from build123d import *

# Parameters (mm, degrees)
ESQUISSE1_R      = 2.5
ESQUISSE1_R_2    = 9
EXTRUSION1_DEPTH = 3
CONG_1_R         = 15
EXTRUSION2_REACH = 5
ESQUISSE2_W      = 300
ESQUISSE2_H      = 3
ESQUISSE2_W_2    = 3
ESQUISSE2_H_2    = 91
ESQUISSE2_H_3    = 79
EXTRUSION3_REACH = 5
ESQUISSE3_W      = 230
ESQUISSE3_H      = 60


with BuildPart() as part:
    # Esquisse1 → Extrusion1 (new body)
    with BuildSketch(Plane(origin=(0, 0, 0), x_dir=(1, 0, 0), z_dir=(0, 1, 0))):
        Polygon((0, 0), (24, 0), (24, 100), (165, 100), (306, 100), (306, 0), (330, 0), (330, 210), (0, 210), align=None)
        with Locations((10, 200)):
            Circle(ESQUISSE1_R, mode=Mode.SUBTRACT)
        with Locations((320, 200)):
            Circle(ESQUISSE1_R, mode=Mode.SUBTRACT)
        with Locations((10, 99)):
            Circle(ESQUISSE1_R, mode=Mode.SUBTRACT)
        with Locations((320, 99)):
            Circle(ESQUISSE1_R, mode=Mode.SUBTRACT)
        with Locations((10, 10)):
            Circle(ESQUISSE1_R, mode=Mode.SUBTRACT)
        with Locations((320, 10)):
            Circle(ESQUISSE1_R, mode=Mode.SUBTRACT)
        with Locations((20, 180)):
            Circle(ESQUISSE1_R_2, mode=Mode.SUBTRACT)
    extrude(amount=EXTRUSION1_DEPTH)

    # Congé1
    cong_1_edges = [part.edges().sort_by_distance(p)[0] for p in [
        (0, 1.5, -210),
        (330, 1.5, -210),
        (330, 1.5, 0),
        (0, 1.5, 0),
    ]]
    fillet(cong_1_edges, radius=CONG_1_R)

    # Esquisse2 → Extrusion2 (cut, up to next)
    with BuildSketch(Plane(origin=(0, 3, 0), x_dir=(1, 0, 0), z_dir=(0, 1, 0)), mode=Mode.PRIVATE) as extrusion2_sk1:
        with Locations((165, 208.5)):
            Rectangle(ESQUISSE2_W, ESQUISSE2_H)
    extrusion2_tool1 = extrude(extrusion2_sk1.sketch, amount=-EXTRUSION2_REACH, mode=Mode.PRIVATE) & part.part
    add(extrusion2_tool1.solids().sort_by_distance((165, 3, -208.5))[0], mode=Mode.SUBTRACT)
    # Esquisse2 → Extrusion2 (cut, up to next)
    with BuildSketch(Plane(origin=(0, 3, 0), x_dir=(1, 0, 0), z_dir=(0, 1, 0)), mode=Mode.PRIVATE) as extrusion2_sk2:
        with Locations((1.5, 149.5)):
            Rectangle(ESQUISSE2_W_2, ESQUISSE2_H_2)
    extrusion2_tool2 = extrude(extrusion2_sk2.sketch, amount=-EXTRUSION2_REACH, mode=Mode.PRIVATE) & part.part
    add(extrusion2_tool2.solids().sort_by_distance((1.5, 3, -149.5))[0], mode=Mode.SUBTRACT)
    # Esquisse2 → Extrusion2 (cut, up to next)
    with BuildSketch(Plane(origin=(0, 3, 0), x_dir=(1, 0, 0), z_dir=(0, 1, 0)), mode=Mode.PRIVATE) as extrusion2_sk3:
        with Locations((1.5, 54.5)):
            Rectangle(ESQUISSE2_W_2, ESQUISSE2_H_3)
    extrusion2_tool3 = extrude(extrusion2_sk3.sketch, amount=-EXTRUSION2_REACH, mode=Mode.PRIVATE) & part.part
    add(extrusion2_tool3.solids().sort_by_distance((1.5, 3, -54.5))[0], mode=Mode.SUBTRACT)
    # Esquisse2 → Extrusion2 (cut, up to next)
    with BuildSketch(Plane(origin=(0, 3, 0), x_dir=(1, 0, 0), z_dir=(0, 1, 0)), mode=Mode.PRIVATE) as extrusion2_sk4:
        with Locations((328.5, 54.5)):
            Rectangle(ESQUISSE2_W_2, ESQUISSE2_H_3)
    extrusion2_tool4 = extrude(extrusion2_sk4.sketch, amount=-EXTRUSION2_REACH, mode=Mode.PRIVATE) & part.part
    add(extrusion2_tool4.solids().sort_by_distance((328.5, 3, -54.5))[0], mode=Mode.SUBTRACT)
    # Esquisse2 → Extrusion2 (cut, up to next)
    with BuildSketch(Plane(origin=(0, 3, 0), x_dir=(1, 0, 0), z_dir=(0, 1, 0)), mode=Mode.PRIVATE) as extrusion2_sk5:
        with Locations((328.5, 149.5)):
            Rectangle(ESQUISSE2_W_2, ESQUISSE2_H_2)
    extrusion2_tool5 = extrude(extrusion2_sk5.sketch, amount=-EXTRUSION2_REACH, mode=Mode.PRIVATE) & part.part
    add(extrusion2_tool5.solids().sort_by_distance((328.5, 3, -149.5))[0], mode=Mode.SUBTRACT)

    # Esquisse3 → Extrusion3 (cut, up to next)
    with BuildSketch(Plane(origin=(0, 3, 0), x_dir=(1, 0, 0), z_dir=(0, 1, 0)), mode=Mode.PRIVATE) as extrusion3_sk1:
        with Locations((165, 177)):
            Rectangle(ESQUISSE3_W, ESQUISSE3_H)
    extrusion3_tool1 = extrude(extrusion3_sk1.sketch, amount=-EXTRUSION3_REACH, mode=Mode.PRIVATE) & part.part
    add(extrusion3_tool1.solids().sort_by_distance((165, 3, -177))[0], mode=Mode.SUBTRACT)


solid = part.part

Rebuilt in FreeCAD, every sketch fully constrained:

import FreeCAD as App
import Part
import Sketcher


def edges_at(feature, points):
    """Names of the edges that pass closest to the given points."""
    edges = feature.Shape.Edges
    near = lambda p: min(range(len(edges)), key=lambda i: edges[i].distToShape(Part.Vertex(*p))[0])
    return sorted({f"Edge{near(p) + 1}" for p in points})


def add_polygon(sketch, points):
    """Adds a closed chain of lines whose ends are joined by coincident constraints."""
    first, n = sketch.GeometryCount, len(points)
    for a, b in zip(points, points[1:] + points[:1]):
        sketch.addGeometry(Part.LineSegment(App.Vector(*a, 0), App.Vector(*b, 0)), False)
    for i in range(n):
        sketch.addConstraint(Sketcher.Constraint("Coincident", first + i, 2, first + (i + 1) % n, 1))

doc = App.newDocument("Part")
body = doc.addObject("PartDesign::Body", "Body")

sketch1 = doc.addObject("Sketcher::SketchObject", "Sketch")
body.addObject(sketch1)
sketch1.AttachmentSupport = (doc.XZ_Plane, [""])
sketch1.MapMode = "FlatFace"
add_polygon(sketch1, [(0, 0), (24, 0), (24, -100), (306, -100), (306, 0), (330, 0), (330, -210), (0, -210)])
sketch1.addGeometry(Part.Circle(App.Vector(10, -10, 0), App.Vector(0, 0, 1), 2.5), False)
sketch1.addGeometry(Part.Circle(App.Vector(10, -99, 0), App.Vector(0, 0, 1), 2.5), False)
sketch1.addGeometry(Part.Circle(App.Vector(320, -10, 0), App.Vector(0, 0, 1), 2.5), False)
sketch1.addGeometry(Part.Circle(App.Vector(320, -99, 0), App.Vector(0, 0, 1), 2.5), False)
sketch1.addGeometry(Part.Circle(App.Vector(20, -180, 0), App.Vector(0, 0, 1), 9), False)
sketch1.addGeometry(Part.Circle(App.Vector(10, -200, 0), App.Vector(0, 0, 1), 2.5), False)
sketch1.addGeometry(Part.Circle(App.Vector(320, -200, 0), App.Vector(0, 0, 1), 2.5), False)
sketch1.addConstraint([
    Sketcher.Constraint("Horizontal", 0),
    Sketcher.Constraint("Vertical", 1),
    Sketcher.Constraint("Horizontal", 2),
    Sketcher.Constraint("Vertical", 3),
    Sketcher.Constraint("Horizontal", 4),
    Sketcher.Constraint("Vertical", 5),
    Sketcher.Constraint("Horizontal", 6),
    Sketcher.Constraint("Vertical", 7),
    Sketcher.Constraint("Coincident", 7, 2, -1, 1),
    Sketcher.Constraint("Equal", 8, 9),
    Sketcher.Constraint("Equal", 9, 10),
    Sketcher.Constraint("Equal", 10, 11),
    Sketcher.Constraint("Equal", 11, 13),
    Sketcher.Constraint("Equal", 13, 14),
    Sketcher.Constraint("PointOnObject", 3, 2, -1),
    Sketcher.Constraint("Horizontal", 8, 3, 10, 3),
    Sketcher.Constraint("Horizontal", 9, 3, 11, 3),
    Sketcher.Constraint("Horizontal", 13, 3, 14, 3),
    Sketcher.Constraint("Vertical", 8, 3, 9, 3),
    Sketcher.Constraint("Vertical", 10, 3, 11, 3),
    Sketcher.Constraint("Vertical", 9, 3, 13, 3),
    Sketcher.Constraint("Vertical", 11, 3, 14, 3),
    Sketcher.Constraint("Equal", 0, 4),
    Sketcher.Constraint("Diameter", 8, 5.0),
    Sketcher.Constraint("Diameter", 12, 18.0),
    Sketcher.Constraint("DistanceX", 0, 1, 0, 2, 24.0),
    Sketcher.Constraint("DistanceX", 2, 1, 2, 2, 282.0),
    Sketcher.Constraint("DistanceY", 1, 2, 1, 1, 100.0),
    Sketcher.Constraint("DistanceY", 5, 2, 5, 1, 210.0),
    Sketcher.Constraint("DistanceX", -1, 1, 8, 3, 10.0),
    Sketcher.Constraint("DistanceY", 8, 3, -1, 1, 10.0),
    Sketcher.Constraint("DistanceY", 9, 3, -1, 1, 99.0),
    Sketcher.Constraint("DistanceX", -1, 1, 10, 3, 320.0),
    Sketcher.Constraint("DistanceX", -1, 1, 12, 3, 20.0),
    Sketcher.Constraint("DistanceY", 12, 3, -1, 1, 180.0),
    Sketcher.Constraint("DistanceY", 13, 3, -1, 1, 200.0),
])
pad1 = doc.addObject("PartDesign::Pad", "Pad")
body.addObject(pad1)
pad1.Profile = sketch1
pad1.Length = 3
pad1.Reversed = True
doc.recompute()

fillet = doc.addObject("PartDesign::Fillet", "Fillet")
body.addObject(fillet)
fillet.Base = (pad1, edges_at(pad1, [
    (0, 1.5, -210),
    (330, 1.5, -210),
    (330, 1.5, 0),
    (0, 1.5, 0),
]))
fillet.Radius = 15

sketch2 = doc.addObject("Sketcher::SketchObject", "Sketch001")
body.addObject(sketch2)
sketch2.AttachmentSupport = (doc.XZ_Plane, [""])
sketch2.MapMode = "FlatFace"
sketch2.AttachmentOffset = App.Placement(App.Vector(0, 0, -3), App.Rotation())
add_polygon(sketch2, [(15, -210), (15, -207), (315, -207), (315, -210)])
sketch2.addConstraint([
    Sketcher.Constraint("Vertical", 0),
    Sketcher.Constraint("Horizontal", 1),
    Sketcher.Constraint("Vertical", 2),
    Sketcher.Constraint("Horizontal", 3),
    Sketcher.Constraint("DistanceX", 1, 1, 1, 2, 300.0),
    Sketcher.Constraint("DistanceY", 0, 1, 0, 2, 3.0),
    Sketcher.Constraint("DistanceX", -1, 1, 0, 2, 15.0),
    Sketcher.Constraint("DistanceY", 0, 2, -1, 1, 207.0),
])
pocket1 = doc.addObject("PartDesign::Pocket", "Pocket")
body.addObject(pocket1)
pocket1.Profile = sketch2
pocket1.Type = "UpToFirst"
pocket1.Reversed = True

sketch3 = doc.addObject("Sketcher::SketchObject", "Sketch002")
body.addObject(sketch3)
sketch3.AttachmentSupport = (doc.XZ_Plane, [""])
sketch3.MapMode = "FlatFace"
sketch3.AttachmentOffset = App.Placement(App.Vector(0, 0, -3), App.Rotation())
add_polygon(sketch3, [(0, -195), (0, -104), (3, -104), (3, -195)])
sketch3.addConstraint([
    Sketcher.Constraint("Vertical", 0),
    Sketcher.Constraint("Horizontal", 1),
    Sketcher.Constraint("Vertical", 2),
    Sketcher.Constraint("Horizontal", 3),
    Sketcher.Constraint("PointOnObject", 0, 2, -2),
    Sketcher.Constraint("DistanceX", 1, 1, 1, 2, 3.0),
    Sketcher.Constraint("DistanceY", 0, 1, 0, 2, 91.0),
    Sketcher.Constraint("DistanceY", 0, 2, -1, 1, 104.0),
])
pocket2 = doc.addObject("PartDesign::Pocket", "Pocket001")
body.addObject(pocket2)
pocket2.Profile = sketch3
pocket2.Type = "UpToFirst"
pocket2.Reversed = True

sketch4 = doc.addObject("Sketcher::SketchObject", "Sketch003")
body.addObject(sketch4)
sketch4.AttachmentSupport = (doc.XZ_Plane, [""])
sketch4.MapMode = "FlatFace"
sketch4.AttachmentOffset = App.Placement(App.Vector(0, 0, -3), App.Rotation())
add_polygon(sketch4, [(0, -94), (0, -15), (3, -15), (3, -94)])
sketch4.addConstraint([
    Sketcher.Constraint("Vertical", 0),
    Sketcher.Constraint("Horizontal", 1),
    Sketcher.Constraint("Vertical", 2),
    Sketcher.Constraint("Horizontal", 3),
    Sketcher.Constraint("PointOnObject", 0, 2, -2),
    Sketcher.Constraint("DistanceX", 1, 1, 1, 2, 3.0),
    Sketcher.Constraint("DistanceY", 0, 1, 0, 2, 79.0),
    Sketcher.Constraint("DistanceY", 0, 2, -1, 1, 15.0),
])
pocket3 = doc.addObject("PartDesign::Pocket", "Pocket002")
body.addObject(pocket3)
pocket3.Profile = sketch4
pocket3.Type = "UpToFirst"
pocket3.Reversed = True

sketch5 = doc.addObject("Sketcher::SketchObject", "Sketch004")
body.addObject(sketch5)
sketch5.AttachmentSupport = (doc.XZ_Plane, [""])
sketch5.MapMode = "FlatFace"
sketch5.AttachmentOffset = App.Placement(App.Vector(0, 0, -3), App.Rotation())
add_polygon(sketch5, [(327, -94), (327, -15), (330, -15), (330, -94)])
sketch5.addConstraint([
    Sketcher.Constraint("Vertical", 0),
    Sketcher.Constraint("Horizontal", 1),
    Sketcher.Constraint("Vertical", 2),
    Sketcher.Constraint("Horizontal", 3),
    Sketcher.Constraint("DistanceX", 1, 1, 1, 2, 3.0),
    Sketcher.Constraint("DistanceY", 0, 1, 0, 2, 79.0),
    Sketcher.Constraint("DistanceX", -1, 1, 0, 2, 327.0),
    Sketcher.Constraint("DistanceY", 0, 2, -1, 1, 15.0),
])
pocket4 = doc.addObject("PartDesign::Pocket", "Pocket003")
body.addObject(pocket4)
pocket4.Profile = sketch5
pocket4.Type = "UpToFirst"
pocket4.Reversed = True

sketch6 = doc.addObject("Sketcher::SketchObject", "Sketch005")
body.addObject(sketch6)
sketch6.AttachmentSupport = (doc.XZ_Plane, [""])
sketch6.MapMode = "FlatFace"
sketch6.AttachmentOffset = App.Placement(App.Vector(0, 0, -3), App.Rotation())
add_polygon(sketch6, [(327, -195), (327, -104), (330, -104), (330, -195)])
sketch6.addConstraint([
    Sketcher.Constraint("Vertical", 0),
    Sketcher.Constraint("Horizontal", 1),
    Sketcher.Constraint("Vertical", 2),
    Sketcher.Constraint("Horizontal", 3),
    Sketcher.Constraint("DistanceX", 1, 1, 1, 2, 3.0),
    Sketcher.Constraint("DistanceY", 0, 1, 0, 2, 91.0),
    Sketcher.Constraint("DistanceX", -1, 1, 0, 2, 327.0),
    Sketcher.Constraint("DistanceY", 0, 2, -1, 1, 104.0),
])
pocket5 = doc.addObject("PartDesign::Pocket", "Pocket004")
body.addObject(pocket5)
pocket5.Profile = sketch6
pocket5.Type = "UpToFirst"
pocket5.Reversed = True

sketch7 = doc.addObject("Sketcher::SketchObject", "Sketch006")
body.addObject(sketch7)
sketch7.AttachmentSupport = (doc.XZ_Plane, [""])
sketch7.MapMode = "FlatFace"
sketch7.AttachmentOffset = App.Placement(App.Vector(0, 0, -3), App.Rotation())
add_polygon(sketch7, [(50, -207), (50, -147), (280, -147), (280, -207)])
sketch7.addConstraint([
    Sketcher.Constraint("Vertical", 0),
    Sketcher.Constraint("Horizontal", 1),
    Sketcher.Constraint("Vertical", 2),
    Sketcher.Constraint("Horizontal", 3),
    Sketcher.Constraint("DistanceX", 1, 1, 1, 2, 230.0),
    Sketcher.Constraint("DistanceY", 0, 1, 0, 2, 60.0),
    Sketcher.Constraint("DistanceX", -1, 1, 0, 2, 50.0),
    Sketcher.Constraint("DistanceY", 0, 2, -1, 1, 147.0),
])
pocket6 = doc.addObject("PartDesign::Pocket", "Pocket005")
body.addObject(pocket6)
pocket6.Profile = sketch7
pocket6.Type = "UpToFirst"
pocket6.Reversed = True

doc.recompute()
